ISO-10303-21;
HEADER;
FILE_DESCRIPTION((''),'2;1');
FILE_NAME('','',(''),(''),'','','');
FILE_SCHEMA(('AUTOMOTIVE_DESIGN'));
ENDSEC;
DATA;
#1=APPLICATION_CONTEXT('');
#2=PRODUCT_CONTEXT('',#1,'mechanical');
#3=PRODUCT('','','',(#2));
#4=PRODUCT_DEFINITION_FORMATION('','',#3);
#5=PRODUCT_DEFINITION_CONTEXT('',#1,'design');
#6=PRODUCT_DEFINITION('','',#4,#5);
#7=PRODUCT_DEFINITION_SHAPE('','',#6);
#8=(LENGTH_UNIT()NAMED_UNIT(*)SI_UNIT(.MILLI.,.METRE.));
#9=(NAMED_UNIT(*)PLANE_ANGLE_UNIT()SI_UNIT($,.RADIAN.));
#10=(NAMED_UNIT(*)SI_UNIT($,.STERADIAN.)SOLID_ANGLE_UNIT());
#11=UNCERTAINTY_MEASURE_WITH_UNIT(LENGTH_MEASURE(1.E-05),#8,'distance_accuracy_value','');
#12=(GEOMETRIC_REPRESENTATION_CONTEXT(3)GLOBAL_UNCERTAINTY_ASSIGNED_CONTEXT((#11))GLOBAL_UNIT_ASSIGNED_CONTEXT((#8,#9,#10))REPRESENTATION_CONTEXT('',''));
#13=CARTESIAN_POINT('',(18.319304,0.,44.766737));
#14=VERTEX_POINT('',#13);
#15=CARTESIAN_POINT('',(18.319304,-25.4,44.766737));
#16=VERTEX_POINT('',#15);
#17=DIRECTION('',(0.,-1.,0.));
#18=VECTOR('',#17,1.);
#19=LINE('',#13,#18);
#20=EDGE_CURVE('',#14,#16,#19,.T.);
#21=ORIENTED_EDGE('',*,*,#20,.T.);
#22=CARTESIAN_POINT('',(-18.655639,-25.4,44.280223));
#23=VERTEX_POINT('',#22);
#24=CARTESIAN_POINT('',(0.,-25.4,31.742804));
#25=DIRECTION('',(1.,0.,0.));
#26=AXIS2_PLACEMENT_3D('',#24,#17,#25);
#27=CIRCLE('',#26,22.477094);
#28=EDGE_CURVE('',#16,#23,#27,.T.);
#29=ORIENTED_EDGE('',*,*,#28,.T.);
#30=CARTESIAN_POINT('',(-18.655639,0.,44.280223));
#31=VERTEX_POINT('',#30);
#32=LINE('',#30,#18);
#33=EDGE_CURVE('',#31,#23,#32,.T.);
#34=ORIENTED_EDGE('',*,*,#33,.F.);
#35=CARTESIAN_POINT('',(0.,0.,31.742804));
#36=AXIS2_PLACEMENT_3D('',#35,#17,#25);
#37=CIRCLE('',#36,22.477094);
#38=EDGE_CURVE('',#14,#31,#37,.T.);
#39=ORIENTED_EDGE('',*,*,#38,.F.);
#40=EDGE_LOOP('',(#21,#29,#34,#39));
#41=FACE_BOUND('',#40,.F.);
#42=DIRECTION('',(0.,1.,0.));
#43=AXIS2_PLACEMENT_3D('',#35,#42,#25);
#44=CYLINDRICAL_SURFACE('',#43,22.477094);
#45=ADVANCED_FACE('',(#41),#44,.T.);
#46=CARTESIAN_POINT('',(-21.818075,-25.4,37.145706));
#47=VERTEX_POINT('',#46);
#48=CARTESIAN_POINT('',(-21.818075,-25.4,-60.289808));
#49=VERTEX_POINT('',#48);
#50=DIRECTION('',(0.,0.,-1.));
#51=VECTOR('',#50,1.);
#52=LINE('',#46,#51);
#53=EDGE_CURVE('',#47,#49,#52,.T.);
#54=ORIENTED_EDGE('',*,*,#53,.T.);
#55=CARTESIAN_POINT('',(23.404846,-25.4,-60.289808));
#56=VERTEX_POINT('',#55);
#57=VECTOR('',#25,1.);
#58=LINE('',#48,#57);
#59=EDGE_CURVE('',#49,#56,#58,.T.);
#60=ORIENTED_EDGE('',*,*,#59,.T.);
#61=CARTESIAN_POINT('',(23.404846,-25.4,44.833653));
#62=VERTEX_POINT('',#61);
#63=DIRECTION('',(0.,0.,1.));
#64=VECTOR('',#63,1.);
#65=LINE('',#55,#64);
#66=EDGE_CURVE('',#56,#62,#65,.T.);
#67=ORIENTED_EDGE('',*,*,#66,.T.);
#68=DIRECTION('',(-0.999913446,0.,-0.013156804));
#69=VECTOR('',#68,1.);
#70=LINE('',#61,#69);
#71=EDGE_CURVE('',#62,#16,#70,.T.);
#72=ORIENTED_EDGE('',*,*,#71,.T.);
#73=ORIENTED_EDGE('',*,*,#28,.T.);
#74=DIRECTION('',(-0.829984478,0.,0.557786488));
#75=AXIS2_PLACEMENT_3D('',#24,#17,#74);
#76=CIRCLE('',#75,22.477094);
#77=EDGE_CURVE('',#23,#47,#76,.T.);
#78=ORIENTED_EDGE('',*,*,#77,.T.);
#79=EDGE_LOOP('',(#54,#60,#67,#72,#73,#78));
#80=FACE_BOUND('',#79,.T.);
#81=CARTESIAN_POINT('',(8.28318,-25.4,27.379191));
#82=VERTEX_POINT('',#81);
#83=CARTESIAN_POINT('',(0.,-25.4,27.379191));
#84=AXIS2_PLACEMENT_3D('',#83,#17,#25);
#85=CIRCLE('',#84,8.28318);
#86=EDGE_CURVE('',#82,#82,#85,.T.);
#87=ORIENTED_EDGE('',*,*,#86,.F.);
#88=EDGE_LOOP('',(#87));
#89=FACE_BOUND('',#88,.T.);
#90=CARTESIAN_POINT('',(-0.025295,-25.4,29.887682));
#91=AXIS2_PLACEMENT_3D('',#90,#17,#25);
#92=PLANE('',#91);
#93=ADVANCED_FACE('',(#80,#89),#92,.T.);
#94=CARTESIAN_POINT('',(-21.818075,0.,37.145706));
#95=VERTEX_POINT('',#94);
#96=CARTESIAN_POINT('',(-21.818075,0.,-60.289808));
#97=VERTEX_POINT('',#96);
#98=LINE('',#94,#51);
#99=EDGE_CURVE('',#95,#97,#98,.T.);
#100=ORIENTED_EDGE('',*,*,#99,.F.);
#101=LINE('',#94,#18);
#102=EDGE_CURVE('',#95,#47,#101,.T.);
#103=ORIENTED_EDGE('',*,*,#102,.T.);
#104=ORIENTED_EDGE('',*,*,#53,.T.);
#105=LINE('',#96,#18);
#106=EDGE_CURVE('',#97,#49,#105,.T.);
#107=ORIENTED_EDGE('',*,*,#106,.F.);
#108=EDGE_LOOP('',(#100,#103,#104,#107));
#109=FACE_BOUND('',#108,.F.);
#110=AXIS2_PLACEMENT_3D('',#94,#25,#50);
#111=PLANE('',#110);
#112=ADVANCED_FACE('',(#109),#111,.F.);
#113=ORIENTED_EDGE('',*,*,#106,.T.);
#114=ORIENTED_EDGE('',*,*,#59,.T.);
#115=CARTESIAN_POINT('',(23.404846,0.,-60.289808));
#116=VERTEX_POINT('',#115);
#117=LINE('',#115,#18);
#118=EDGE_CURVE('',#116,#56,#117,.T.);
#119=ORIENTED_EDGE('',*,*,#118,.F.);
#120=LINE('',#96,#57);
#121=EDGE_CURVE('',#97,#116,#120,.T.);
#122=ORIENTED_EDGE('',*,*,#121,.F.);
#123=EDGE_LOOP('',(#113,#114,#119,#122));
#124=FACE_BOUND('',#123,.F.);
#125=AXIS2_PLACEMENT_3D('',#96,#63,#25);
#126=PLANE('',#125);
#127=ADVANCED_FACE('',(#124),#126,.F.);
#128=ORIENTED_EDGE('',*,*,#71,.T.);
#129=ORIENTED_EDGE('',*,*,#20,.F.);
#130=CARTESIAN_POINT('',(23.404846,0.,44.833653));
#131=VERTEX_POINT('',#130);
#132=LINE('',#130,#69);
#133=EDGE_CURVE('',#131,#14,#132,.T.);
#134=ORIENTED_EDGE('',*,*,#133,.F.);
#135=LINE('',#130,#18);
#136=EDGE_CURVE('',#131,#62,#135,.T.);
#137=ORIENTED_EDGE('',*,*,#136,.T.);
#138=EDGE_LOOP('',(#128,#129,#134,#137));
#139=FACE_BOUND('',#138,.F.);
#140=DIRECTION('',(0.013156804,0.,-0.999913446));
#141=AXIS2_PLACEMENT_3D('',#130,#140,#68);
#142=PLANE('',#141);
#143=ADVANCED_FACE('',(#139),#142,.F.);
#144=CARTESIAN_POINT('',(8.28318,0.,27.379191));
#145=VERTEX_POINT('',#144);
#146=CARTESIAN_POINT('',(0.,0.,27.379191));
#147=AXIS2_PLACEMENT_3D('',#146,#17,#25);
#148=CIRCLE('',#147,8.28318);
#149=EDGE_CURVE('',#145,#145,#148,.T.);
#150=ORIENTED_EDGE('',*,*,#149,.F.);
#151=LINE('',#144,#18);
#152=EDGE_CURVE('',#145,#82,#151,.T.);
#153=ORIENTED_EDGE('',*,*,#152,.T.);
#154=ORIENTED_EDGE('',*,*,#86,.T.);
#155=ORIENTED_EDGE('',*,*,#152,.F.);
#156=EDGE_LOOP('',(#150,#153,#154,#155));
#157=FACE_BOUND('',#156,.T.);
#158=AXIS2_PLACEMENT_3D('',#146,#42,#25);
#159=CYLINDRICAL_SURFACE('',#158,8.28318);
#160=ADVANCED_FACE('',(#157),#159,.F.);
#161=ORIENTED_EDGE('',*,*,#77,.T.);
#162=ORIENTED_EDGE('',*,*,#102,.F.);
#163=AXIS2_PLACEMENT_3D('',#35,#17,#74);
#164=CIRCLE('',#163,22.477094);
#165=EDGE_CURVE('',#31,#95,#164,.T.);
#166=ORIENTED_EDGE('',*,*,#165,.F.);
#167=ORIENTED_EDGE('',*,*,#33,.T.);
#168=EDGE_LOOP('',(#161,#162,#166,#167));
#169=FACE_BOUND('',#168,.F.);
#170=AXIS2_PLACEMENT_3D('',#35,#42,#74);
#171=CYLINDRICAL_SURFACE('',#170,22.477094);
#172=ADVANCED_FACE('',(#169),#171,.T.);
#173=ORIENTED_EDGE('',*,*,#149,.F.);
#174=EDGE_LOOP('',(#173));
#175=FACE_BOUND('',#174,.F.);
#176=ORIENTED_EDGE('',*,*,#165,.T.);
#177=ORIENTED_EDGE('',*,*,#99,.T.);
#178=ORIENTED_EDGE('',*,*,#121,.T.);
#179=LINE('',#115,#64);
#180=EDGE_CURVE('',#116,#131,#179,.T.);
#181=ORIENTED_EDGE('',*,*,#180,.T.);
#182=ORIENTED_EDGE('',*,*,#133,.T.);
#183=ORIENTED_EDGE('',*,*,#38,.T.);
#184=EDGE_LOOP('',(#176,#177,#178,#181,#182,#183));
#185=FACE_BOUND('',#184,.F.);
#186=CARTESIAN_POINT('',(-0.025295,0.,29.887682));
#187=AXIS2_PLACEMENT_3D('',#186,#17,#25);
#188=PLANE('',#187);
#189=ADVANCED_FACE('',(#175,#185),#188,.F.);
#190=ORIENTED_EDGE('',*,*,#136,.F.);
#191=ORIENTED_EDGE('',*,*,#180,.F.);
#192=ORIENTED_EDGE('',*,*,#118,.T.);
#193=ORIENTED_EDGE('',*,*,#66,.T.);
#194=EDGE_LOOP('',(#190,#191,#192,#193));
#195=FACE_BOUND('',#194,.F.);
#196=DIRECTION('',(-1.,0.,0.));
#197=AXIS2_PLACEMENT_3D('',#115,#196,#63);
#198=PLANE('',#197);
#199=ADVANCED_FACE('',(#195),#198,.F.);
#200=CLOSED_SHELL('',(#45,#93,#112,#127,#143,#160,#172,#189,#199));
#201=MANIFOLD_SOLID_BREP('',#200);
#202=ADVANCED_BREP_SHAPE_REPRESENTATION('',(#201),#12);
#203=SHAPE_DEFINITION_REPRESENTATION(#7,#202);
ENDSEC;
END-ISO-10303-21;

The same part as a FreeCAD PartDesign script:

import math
import FreeCAD as App
import Part
import Sketcher
from FreeCAD import Vector
Q = App.Units.Quantity

doc = App.newDocument("Part")
body = doc.addObject("PartDesign::Body", "Body")

# Sketch on XZ plane
sketch1 = doc.addObject("Sketcher::SketchObject", "Sketch")
body.addObject(sketch1)
sketch1.AttachmentSupport = (doc.XZ_Plane, [""])
sketch1.MapMode = "FlatFace"
sketch1.addGeometry(Part.ArcOfCircle(Part.Circle(Vector(0, 32, 0), Vector(0, 0, 1), 22), math.radians(146.1), math.radians(166.09)), False)
sketch1.addGeometry(Part.LineSegment(Vector(-22, 37, 0), Vector(-22, -60, 0)), False)
sketch1.addGeometry(Part.LineSegment(Vector(-22, -60, 0), Vector(23, -60, 0)), False)
sketch1.addGeometry(Part.LineSegment(Vector(23, -60, 0), Vector(23, 45, 0)), False)
sketch1.addGeometry(Part.LineSegment(Vector(23, 45, 0), Vector(18, 45, 0)), False)
sketch1.addGeometry(Part.ArcOfCircle(Part.Circle(Vector(0, 32, 0), Vector(0, 0, 1), 22), math.radians(35), math.radians(146)), False)
sketch1.addGeometry(Part.Circle(Vector(0, 27, 0), Vector(0, 0, 1), 8), False)
sketch1.addConstraint(Sketcher.Constraint("Coincident", 0, 2, 1, 1))
sketch1.addConstraint(Sketcher.Constraint("Coincident", 1, 2, 2, 1))
sketch1.addConstraint(Sketcher.Constraint("Coincident", 2, 2, 3, 1))
sketch1.addConstraint(Sketcher.Constraint("Coincident", 3, 2, 4, 1))
sketch1.addConstraint(Sketcher.Constraint("Coincident", 4, 2, 5, 1))
sketch1.addConstraint(Sketcher.Constraint("Tangent", 5, 2, 0, 1))
sketch1.addConstraint(Sketcher.Constraint("Vertical", 1))
sketch1.addConstraint(Sketcher.Constraint("Horizontal", 2))
sketch1.addConstraint(Sketcher.Constraint("Vertical", 3))
sketch1.addConstraint(Sketcher.Constraint("Equal", 0, 5))
sketch1.addConstraint(Sketcher.Constraint("PointOnObject", 0, 3, -2))
sketch1.addConstraint(Sketcher.Constraint("PointOnObject", 6, 3, -2))
sketch1.addConstraint(Sketcher.Constraint("Diameter", 6, 16.56636))
sketch1.addConstraint(Sketcher.Constraint("Radius", 0, 22.477094))
sketch1.addConstraint(Sketcher.Constraint("DistanceX", 2, 1, 2, 2, 45.222921))
sketch1.addConstraint(Sketcher.Constraint("DistanceY", 3, 1, 3, 2, 105.12346))
sketch1.addConstraint(Sketcher.Constraint("DistanceY", 1, 2, 6, 3, 87.668998))
sketch1.addConstraint(Sketcher.Constraint("Distance", 4, 5.085982))
sketch1.addConstraint(Sketcher.Constraint("DistanceY", 1, 2, 1, 1, 97.435514))
sketch1.addConstraint(Sketcher.Constraint("DistanceY", -1, 1, 6, 3, 27.379191))
sketch1.addConstraint(Sketcher.Constraint("DistanceX", 5, 2, -1, 1, 18.655639))
sketch1.addConstraint(Sketcher.Constraint("DistanceY", 1, 2, 5, 3, 92.032611))
pad1 = doc.addObject("PartDesign::Pad", "Pad")
body.addObject(pad1)
pad1.Profile = sketch1
pad1.Length = Q("1 in")

doc.recompute()
